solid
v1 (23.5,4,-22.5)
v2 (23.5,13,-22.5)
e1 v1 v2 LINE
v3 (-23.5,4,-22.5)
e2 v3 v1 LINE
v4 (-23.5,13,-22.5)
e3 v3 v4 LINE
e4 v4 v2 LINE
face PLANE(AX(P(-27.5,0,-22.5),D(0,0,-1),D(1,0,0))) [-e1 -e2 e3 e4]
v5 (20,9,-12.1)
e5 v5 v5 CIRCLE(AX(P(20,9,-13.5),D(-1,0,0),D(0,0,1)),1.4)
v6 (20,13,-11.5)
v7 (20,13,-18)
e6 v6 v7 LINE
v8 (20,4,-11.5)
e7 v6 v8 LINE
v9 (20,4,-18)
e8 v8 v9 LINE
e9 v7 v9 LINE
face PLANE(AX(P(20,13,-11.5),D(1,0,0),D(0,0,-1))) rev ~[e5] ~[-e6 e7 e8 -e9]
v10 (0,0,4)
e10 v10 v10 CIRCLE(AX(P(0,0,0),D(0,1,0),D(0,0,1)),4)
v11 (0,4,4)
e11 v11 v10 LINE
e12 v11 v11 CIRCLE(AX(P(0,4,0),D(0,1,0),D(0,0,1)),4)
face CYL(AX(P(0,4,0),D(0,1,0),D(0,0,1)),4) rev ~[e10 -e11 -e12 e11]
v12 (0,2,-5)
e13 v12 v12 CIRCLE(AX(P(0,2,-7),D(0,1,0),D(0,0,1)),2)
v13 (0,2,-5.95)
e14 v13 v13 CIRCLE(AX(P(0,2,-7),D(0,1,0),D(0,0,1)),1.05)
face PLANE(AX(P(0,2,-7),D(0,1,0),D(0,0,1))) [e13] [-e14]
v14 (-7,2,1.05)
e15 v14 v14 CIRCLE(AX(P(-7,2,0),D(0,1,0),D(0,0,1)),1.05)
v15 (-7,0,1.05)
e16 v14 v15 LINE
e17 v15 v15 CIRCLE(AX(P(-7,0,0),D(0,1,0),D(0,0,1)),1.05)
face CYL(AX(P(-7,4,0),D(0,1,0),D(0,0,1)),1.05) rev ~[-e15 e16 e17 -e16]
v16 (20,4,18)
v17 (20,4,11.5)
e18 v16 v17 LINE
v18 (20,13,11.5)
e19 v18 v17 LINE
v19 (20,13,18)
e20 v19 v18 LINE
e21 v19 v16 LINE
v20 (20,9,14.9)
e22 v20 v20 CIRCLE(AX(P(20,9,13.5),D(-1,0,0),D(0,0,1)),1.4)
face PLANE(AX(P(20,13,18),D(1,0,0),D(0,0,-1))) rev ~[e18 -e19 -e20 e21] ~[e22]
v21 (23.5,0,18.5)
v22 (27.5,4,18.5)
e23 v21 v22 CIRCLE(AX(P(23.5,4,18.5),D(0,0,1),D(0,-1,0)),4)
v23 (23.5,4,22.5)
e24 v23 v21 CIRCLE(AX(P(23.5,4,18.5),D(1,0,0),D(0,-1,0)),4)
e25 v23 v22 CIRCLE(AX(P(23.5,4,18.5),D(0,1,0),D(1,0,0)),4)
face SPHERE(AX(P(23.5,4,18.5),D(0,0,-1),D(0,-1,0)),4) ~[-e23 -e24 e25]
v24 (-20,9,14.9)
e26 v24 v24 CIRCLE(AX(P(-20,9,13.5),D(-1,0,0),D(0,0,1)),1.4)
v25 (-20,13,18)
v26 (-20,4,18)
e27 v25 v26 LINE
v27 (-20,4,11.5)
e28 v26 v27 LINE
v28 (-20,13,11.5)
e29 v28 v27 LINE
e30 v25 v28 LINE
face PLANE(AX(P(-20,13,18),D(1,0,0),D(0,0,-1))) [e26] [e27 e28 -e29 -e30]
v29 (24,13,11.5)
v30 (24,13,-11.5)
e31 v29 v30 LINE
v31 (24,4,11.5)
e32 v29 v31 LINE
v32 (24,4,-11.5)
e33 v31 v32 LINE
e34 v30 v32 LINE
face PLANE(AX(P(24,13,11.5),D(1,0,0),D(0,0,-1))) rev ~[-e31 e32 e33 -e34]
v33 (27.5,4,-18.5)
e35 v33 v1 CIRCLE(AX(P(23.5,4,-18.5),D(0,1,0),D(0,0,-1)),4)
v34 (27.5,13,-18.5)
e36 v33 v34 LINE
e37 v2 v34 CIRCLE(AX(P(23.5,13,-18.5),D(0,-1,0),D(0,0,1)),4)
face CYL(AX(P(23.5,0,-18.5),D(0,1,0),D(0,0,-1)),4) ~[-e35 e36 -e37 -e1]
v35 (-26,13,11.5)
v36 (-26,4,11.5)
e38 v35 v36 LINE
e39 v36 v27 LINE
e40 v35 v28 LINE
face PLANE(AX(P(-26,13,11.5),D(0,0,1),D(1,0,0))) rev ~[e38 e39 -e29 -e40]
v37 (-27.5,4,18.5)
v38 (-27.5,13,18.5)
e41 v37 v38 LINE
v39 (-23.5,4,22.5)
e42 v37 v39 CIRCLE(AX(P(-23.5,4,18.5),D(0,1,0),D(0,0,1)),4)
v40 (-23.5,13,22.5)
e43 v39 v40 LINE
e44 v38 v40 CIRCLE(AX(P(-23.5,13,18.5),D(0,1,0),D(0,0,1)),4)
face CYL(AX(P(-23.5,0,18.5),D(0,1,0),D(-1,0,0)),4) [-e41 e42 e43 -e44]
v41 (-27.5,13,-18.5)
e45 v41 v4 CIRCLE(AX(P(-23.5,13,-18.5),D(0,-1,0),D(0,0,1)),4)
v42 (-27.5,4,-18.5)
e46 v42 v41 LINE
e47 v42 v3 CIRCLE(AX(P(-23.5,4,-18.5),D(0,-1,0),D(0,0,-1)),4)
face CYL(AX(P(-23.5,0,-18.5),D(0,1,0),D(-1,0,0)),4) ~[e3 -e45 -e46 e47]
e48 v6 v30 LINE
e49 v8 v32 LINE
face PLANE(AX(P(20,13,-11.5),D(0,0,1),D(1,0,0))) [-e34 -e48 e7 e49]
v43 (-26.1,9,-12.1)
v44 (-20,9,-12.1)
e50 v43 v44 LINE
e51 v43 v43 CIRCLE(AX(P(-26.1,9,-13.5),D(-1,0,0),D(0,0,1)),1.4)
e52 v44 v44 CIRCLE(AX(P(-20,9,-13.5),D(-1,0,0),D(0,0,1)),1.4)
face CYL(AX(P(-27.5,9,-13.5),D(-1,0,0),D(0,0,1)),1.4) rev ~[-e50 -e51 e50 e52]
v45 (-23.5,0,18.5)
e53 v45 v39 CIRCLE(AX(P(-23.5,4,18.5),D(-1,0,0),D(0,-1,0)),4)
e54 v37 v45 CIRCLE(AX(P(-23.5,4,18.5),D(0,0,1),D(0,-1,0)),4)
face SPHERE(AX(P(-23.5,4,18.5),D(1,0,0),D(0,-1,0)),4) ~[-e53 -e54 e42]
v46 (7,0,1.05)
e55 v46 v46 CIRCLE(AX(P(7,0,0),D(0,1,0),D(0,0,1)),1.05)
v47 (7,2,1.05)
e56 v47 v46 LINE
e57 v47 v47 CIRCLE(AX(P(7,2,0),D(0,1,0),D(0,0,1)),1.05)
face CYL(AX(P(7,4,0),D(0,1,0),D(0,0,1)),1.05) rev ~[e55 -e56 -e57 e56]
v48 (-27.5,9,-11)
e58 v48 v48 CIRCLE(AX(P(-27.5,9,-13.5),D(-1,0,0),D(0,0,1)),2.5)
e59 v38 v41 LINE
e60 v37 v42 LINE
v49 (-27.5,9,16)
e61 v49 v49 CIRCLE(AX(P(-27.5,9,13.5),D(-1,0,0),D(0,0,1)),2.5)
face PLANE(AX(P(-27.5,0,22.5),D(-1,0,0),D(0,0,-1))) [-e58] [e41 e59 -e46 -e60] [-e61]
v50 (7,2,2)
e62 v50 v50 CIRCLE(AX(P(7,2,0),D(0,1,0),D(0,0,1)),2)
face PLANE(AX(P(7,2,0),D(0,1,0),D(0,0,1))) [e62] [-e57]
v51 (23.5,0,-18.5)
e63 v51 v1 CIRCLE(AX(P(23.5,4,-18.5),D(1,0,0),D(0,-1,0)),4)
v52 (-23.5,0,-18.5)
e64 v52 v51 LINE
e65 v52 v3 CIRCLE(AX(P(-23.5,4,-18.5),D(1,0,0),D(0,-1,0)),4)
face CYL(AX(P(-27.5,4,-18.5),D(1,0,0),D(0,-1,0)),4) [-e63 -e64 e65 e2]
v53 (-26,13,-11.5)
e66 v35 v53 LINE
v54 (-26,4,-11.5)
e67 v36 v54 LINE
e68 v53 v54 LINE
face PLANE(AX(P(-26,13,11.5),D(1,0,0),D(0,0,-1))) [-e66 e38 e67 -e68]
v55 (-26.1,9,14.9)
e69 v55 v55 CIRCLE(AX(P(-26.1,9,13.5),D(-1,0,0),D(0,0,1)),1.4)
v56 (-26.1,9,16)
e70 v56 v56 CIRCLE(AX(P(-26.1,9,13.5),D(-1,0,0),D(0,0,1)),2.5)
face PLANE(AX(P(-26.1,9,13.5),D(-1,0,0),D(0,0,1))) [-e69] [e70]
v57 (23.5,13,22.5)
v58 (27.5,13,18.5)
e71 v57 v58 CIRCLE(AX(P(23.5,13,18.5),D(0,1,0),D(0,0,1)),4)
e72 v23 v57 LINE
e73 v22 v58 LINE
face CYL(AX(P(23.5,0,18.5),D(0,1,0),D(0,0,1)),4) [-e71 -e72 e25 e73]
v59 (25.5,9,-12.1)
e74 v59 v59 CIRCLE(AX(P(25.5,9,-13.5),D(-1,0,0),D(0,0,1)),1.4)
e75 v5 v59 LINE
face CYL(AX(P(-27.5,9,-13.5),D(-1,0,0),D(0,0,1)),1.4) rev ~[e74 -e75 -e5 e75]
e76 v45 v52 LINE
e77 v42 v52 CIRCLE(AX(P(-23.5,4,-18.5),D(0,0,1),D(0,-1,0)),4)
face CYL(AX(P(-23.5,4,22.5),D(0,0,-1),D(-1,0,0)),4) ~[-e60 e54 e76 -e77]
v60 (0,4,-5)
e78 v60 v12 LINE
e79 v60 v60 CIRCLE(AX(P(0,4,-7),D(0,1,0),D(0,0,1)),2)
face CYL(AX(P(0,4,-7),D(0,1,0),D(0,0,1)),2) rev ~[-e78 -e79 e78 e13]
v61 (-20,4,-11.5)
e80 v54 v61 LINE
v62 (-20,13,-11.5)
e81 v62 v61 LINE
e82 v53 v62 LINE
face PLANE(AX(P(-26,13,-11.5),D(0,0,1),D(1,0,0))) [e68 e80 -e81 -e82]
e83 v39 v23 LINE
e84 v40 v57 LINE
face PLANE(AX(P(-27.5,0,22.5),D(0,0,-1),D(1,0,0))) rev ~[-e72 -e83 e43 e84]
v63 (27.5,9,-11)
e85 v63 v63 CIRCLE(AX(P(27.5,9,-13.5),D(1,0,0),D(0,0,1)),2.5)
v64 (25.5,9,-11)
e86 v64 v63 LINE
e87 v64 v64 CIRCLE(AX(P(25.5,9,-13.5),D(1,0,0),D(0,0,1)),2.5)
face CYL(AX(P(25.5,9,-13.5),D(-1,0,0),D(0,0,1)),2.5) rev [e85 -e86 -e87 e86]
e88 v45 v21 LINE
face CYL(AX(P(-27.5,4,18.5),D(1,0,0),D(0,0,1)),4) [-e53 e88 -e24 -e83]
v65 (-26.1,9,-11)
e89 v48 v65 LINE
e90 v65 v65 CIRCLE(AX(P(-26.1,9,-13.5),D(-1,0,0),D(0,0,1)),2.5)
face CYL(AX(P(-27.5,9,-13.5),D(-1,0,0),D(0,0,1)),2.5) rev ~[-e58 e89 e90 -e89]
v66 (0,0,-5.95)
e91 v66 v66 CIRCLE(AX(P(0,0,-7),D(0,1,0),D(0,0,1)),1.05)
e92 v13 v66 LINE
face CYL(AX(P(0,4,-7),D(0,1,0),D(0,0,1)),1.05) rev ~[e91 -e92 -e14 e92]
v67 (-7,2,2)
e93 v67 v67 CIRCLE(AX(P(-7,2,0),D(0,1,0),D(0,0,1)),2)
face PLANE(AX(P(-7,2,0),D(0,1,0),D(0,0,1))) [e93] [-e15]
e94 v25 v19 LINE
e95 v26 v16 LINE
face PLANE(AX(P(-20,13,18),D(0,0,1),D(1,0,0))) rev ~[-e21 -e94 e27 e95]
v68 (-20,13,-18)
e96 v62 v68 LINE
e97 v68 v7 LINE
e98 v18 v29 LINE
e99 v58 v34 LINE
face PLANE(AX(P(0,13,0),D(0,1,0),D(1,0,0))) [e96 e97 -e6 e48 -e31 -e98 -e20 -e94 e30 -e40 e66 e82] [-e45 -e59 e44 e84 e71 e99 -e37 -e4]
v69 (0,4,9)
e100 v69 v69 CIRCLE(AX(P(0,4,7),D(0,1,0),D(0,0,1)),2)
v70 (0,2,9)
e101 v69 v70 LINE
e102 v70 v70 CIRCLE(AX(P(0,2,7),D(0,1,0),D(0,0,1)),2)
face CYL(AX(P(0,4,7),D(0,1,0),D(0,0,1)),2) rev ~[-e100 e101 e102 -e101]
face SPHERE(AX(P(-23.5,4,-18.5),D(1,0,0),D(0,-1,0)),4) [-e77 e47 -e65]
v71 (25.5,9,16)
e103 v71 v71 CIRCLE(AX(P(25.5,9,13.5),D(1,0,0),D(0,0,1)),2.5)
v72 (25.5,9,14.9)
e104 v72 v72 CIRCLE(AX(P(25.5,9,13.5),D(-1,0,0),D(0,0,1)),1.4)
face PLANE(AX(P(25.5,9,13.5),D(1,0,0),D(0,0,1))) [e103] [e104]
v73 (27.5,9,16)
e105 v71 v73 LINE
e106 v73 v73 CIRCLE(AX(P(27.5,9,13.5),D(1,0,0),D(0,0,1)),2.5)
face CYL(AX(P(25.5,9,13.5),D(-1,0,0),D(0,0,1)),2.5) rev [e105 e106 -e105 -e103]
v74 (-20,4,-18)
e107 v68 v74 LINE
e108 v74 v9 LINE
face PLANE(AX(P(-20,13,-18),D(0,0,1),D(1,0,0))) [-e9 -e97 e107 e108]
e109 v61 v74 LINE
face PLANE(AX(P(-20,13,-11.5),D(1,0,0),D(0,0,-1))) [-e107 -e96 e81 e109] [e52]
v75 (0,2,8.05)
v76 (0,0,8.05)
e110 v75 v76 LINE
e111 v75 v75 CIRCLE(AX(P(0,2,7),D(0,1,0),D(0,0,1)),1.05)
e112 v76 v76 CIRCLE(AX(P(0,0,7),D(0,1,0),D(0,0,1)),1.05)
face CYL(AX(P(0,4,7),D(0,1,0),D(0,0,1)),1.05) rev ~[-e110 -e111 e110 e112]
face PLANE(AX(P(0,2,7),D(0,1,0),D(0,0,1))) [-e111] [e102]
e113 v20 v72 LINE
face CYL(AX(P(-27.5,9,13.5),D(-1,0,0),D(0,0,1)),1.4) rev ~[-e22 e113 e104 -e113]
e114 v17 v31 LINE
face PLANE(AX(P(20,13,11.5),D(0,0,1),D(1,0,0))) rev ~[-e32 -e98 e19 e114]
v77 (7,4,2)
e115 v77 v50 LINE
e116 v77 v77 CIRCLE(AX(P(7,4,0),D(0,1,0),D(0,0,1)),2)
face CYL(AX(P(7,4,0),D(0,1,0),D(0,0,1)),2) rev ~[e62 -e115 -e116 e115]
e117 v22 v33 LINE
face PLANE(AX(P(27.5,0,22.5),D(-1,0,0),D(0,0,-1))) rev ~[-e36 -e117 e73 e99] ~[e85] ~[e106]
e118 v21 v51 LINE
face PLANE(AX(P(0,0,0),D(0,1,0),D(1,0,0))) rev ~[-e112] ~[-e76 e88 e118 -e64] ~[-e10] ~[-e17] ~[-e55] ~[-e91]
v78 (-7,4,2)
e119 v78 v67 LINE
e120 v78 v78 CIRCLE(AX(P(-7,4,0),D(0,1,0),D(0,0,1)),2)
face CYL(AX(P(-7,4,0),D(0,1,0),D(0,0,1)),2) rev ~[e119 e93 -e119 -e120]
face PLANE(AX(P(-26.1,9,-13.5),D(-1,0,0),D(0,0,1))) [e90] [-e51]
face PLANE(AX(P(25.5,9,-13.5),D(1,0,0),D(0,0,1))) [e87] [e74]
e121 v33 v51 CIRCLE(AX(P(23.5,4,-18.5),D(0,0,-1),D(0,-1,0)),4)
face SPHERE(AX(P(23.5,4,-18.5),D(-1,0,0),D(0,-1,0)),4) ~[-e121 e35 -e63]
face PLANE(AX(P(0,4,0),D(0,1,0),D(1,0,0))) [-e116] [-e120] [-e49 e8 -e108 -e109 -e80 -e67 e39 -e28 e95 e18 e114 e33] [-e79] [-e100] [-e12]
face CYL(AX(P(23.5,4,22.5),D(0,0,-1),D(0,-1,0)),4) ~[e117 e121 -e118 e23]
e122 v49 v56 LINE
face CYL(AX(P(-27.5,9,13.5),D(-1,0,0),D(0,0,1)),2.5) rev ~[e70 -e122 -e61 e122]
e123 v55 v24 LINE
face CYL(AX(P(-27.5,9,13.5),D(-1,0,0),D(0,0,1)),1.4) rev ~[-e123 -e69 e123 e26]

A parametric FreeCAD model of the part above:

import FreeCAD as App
import Part
import Sketcher
from FreeCAD import Vector


def edges_at(feature, points):
    """Names of the edges that pass closest to the given points."""
    edges = feature.Shape.Edges
    near = lambda p: min(range(len(edges)), key=lambda i: edges[i].distToShape(Part.Vertex(*p))[0])
    return sorted({f"Edge{near(p) + 1}" for p in points})

doc = App.newDocument("Part")
body = doc.addObject("PartDesign::Body", "Body")

# Sketch on XZ plane
sketch1 = body.newObject("Sketcher::SketchObject", "Sketch")
sketch1.AttachmentSupport = (doc.getObject("XZ_Plane"), [""])
sketch1.MapMode = "FlatFace"
sketch1.addGeometry([
    Part.LineSegment(Vector(-28, -22, 0), Vector(-28, 22, 0)),
    Part.LineSegment(Vector(-28, 22, 0), Vector(28, 22, 0)),
    Part.LineSegment(Vector(28, 22, 0), Vector(28, -22, 0)),
    Part.LineSegment(Vector(28, -22, 0), Vector(-28, -22, 0)),
], False)
sketch1.addConstraint([
    Sketcher.Constraint("Coincident", 0, 2, 1, 1),
    Sketcher.Constraint("Coincident", 1, 2, 2, 1),
    Sketcher.Constraint("Coincident", 2, 2, 3, 1),
    Sketcher.Constraint("Coincident", 3, 2, 0, 1),
    Sketcher.Constraint("Vertical", 0),
    Sketcher.Constraint("Horizontal", 1),
    Sketcher.Constraint("Vertical", 2),
    Sketcher.Constraint("Horizontal", 3),
    Sketcher.Constraint("Symmetric", 0, 2, 2, 2, -1, 1),
    Sketcher.Constraint("DistanceX", 1, 1, 1, 2, 55.0),
    Sketcher.Constraint("DistanceY", 0, 1, 0, 2, 45.0),
])
pad1 = body.newObject("PartDesign::Pad", "Pad")
pad1.Profile = sketch1
pad1.Length = 13
pad1.Reversed = True

# Sketch on XZ plane
sketch2 = body.newObject("Sketcher::SketchObject", "Sketch001")
sketch2.AttachmentSupport = (doc.getObject("XZ_Plane"), [""])
sketch2.MapMode = "FlatFace"
sketch2.AttachmentOffset = App.Placement(Vector(0, 0, -13), App.Rotation())
sketch2.addGeometry([
    Part.LineSegment(Vector(-20, 11.5, 0), Vector(-20, 18, 0)),  # 0
    Part.LineSegment(Vector(-20, 18, 0), Vector(20, 18, 0)),  # 1
    Part.LineSegment(Vector(20, 18, 0), Vector(20, 11.5, 0)),  # 2
    Part.LineSegment(Vector(20, 11.5, 0), Vector(24, 11.5, 0)),  # 3
    Part.LineSegment(Vector(24, 11.5, 0), Vector(24, -11.5, 0)),  # 4
    Part.LineSegment(Vector(24, -11.5, 0), Vector(20, -11.5, 0)),  # 5
    Part.LineSegment(Vector(20, -11.5, 0), Vector(20, -18, 0)),  # 6
    Part.LineSegment(Vector(20, -18, 0), Vector(-20, -18, 0)),  # 7
    Part.LineSegment(Vector(-20, -18, 0), Vector(-20, -11.5, 0)),  # 8
    Part.LineSegment(Vector(-20, -11.5, 0), Vector(-26, -11.5, 0)),  # 9
    Part.LineSegment(Vector(-26, -11.5, 0), Vector(-26, 11.5, 0)),  # 10
    Part.LineSegment(Vector(-26, 11.5, 0), Vector(-20, 11.5, 0)),  # 11
], False)
sketch2.addConstraint([
    Sketcher.Constraint("Coincident", 0, 2, 1, 1),
    Sketcher.Constraint("Coincident", 1, 2, 2, 1),
    Sketcher.Constraint("Coincident", 2, 2, 3, 1),
    Sketcher.Constraint("Coincident", 3, 2, 4, 1),
    Sketcher.Constraint("Coincident", 4, 2, 5, 1),
    Sketcher.Constraint("Coincident", 5, 2, 6, 1),
    Sketcher.Constraint("Coincident", 6, 2, 7, 1),
    Sketcher.Constraint("Coincident", 7, 2, 8, 1),
    Sketcher.Constraint("Coincident", 8, 2, 9, 1),
    Sketcher.Constraint("Coincident", 9, 2, 10, 1),
    Sketcher.Constraint("Coincident", 10, 2, 11, 1),
    Sketcher.Constraint("Coincident", 11, 2, 0, 1),
    Sketcher.Constraint("Vertical", 0),
    Sketcher.Constraint("Horizontal", 1),
    Sketcher.Constraint("Vertical", 2),
    Sketcher.Constraint("Horizontal", 3),
    Sketcher.Constraint("Vertical", 4),
    Sketcher.Constraint("Horizontal", 5),
    Sketcher.Constraint("Vertical", 6),
    Sketcher.Constraint("Horizontal", 7),
    Sketcher.Constraint("Vertical", 8),
    Sketcher.Constraint("Horizontal", 9),
    Sketcher.Constraint("Vertical", 10),
    Sketcher.Constraint("Horizontal", 11),
    Sketcher.Constraint("Symmetric", 0, 2, 6, 2, -1, 1),
    Sketcher.Constraint("Symmetric", 2, 2, 8, 2, -1, 1),
    Sketcher.Constraint("Symmetric", 5, 2, 8, 2, -2),
    Sketcher.Constraint("Horizontal", 3, 2, 10, 2),
    Sketcher.Constraint("DistanceX", 1, 1, 1, 2, 40.0),
    Sketcher.Constraint("DistanceX", 3, 1, 3, 2, 4.0),
    Sketcher.Constraint("DistanceX", 9, 2, 9, 1, 6.0),
    Sketcher.Constraint("DistanceY", 4, 2, 4, 1, 23.0),
    Sketcher.Constraint("DistanceY", 0, 1, 0, 2, 6.5),
])
pocket1 = body.newObject("PartDesign::Pocket", "Pocket")
pocket1.Profile = sketch2
pocket1.Length = 9
pocket1.Reversed = True

# Sketch on YZ plane
sketch3 = body.newObject("Sketcher::SketchObject", "Sketch002")
sketch3.AttachmentSupport = (doc.getObject("YZ_Plane"), [""])
sketch3.MapMode = "FlatFace"
sketch3.AttachmentOffset = App.Placement(Vector(0, 0, -27.5), App.Rotation())
sketch3.addGeometry([
    Part.Circle(Vector(9, -13.5, 0), Vector(0, 0, 1), 1.4),
    Part.Circle(Vector(9, 13.5, 0), Vector(0, 0, 1), 1.4),
], False)
sketch3.addConstraint([
    Sketcher.Constraint("Equal", 0, 1),
    Sketcher.Constraint("Symmetric", 0, 3, 1, 3, -1),
    Sketcher.Constraint("Diameter", 0, 2.8),
    Sketcher.Constraint("DistanceX", -1, 1, 0, 3, 9.0),
    Sketcher.Constraint("DistanceY", 0, 3, 1, 3, 27.0),
])
pocket2 = body.newObject("PartDesign::Pocket", "Pocket001")
pocket2.Profile = sketch3
pocket2.Type = "ThroughAll"
pocket2.Reversed = True

# Sketch on XZ plane
sketch4 = body.newObject("Sketcher::SketchObject", "Sketch003")
sketch4.AttachmentSupport = (doc.getObject("XZ_Plane"), [""])
sketch4.MapMode = "FlatFace"
sketch4.AttachmentOffset = App.Placement(Vector(0, 0, -4), App.Rotation())
sketch4.addGeometry([
    Part.Circle(Vector(0, -7, 0), Vector(0, 0, 1), 1.1),  # 0
    Part.Circle(Vector(7, 0, 0), Vector(0, 0, 1), 1.1),  # 1
    Part.Circle(Vector(-7, 0, 0), Vector(0, 0, 1), 1.1),  # 2
    Part.Circle(Vector(0, 7, 0), Vector(0, 0, 1), 1.1),  # 3
    Part.Circle(Vector(0, 0, 0), Vector(0, 0, 1), 4),  # 4
], False)
sketch4.addConstraint([
    Sketcher.Constraint("Coincident", 4, 3, -1, 1),
    Sketcher.Constraint("Equal", 0, 1),
    Sketcher.Constraint("Equal", 1, 2),
    Sketcher.Constraint("Equal", 2, 3),
    Sketcher.Constraint("Symmetric", 1, 3, 2, 3, -1, 1),
    Sketcher.Constraint("Symmetric", 0, 3, 3, 3, -1, 1),
    Sketcher.Constraint("PointOnObject", 0, 3, -2),
    Sketcher.Constraint("PointOnObject", 1, 3, -1),
    Sketcher.Constraint("Diameter", 4, 8.0),
    Sketcher.Constraint("Diameter", 0, 2.1),
    Sketcher.Constraint("DistanceY", 0, 3, -1, 1, 7.0),
    Sketcher.Constraint("DistanceX", -1, 1, 1, 3, 7.0),
])
pocket3 = body.newObject("PartDesign::Pocket", "Pocket002")
pocket3.Profile = sketch4
pocket3.Type = "ThroughAll"
pocket3.Reversed = True

# Sketch on XZ plane
sketch5 = body.newObject("Sketcher::SketchObject", "Sketch004")
sketch5.AttachmentSupport = (doc.getObject("XZ_Plane"), [""])
sketch5.MapMode = "FlatFace"
sketch5.AttachmentOffset = App.Placement(Vector(0, 0, -4), App.Rotation())
sketch5.addGeometry([
    Part.Circle(Vector(-7, 0, 0), Vector(0, 0, 1), 2),
    Part.Circle(Vector(0, -7, 0), Vector(0, 0, 1), 2),
    Part.Circle(Vector(7, 0, 0), Vector(0, 0, 1), 2),
    Part.Circle(Vector(0, 7, 0), Vector(0, 0, 1), 2),
], False)
sketch5.addConstraint([
    Sketcher.Constraint("Equal", 0, 1),
    Sketcher.Constraint("Equal", 1, 2),
    Sketcher.Constraint("Equal", 2, 3),
    Sketcher.Constraint("Symmetric", 0, 3, 2, 3, -1, 1),
    Sketcher.Constraint("Symmetric", 1, 3, 3, 3, -1, 1),
    Sketcher.Constraint("PointOnObject", 0, 3, -1),
    Sketcher.Constraint("PointOnObject", 1, 3, -2),
    Sketcher.Constraint("Diameter", 0, 4.0),
    Sketcher.Constraint("DistanceX", 0, 3, -1, 1, 7.0),
    Sketcher.Constraint("DistanceY", 1, 3, -1, 1, 7.0),
])
pocket4 = body.newObject("PartDesign::Pocket", "Pocket003")
pocket4.Profile = sketch5
pocket4.Length = 2
pocket4.Reversed = True

# Sketch on YZ plane
sketch6 = body.newObject("Sketcher::SketchObject", "Sketch005")
sketch6.AttachmentSupport = (doc.getObject("YZ_Plane"), [""])
sketch6.MapMode = "FlatFace"
sketch6.AttachmentOffset = App.Placement(Vector(0, 0, -27.5), App.Rotation())
sketch6.addGeometry([
    Part.Circle(Vector(9, -13.5, 0), Vector(0, 0, 1), 2.5),
    Part.Circle(Vector(9, 13.5, 0), Vector(0, 0, 1), 2.5),
], False)
sketch6.addConstraint([
    Sketcher.Constraint("Equal", 0, 1),
    Sketcher.Constraint("Symmetric", 0, 3, 1, 3, -1),
    Sketcher.Constraint("Diameter", 0, 5.0),
    Sketcher.Constraint("DistanceX", -1, 1, 0, 3, 9.0),
    Sketcher.Constraint("DistanceY", 0, 3, 1, 3, 27.0),
])
pocket5 = body.newObject("PartDesign::Pocket", "Pocket004")
pocket5.Profile = sketch6
pocket5.Length = 1.4
pocket5.Reversed = True

# Sketch on YZ plane
sketch7 = body.newObject("Sketcher::SketchObject", "Sketch006")
sketch7.AttachmentSupport = (doc.getObject("YZ_Plane"), [""])
sketch7.MapMode = "FlatFace"
sketch7.AttachmentOffset = App.Placement(Vector(0, 0, 25.5), App.Rotation())
sketch7.addGeometry([
    Part.Circle(Vector(9, 13.5, 0), Vector(0, 0, 1), 2.5),
    Part.Circle(Vector(9, -13.5, 0), Vector(0, 0, 1), 2.5),
], False)
sketch7.addConstraint([
    Sketcher.Constraint("Equal", 0, 1),
    Sketcher.Constraint("Symmetric", 0, 3, 1, 3, -1),
    Sketcher.Constraint("Diameter", 0, 5.0),
    Sketcher.Constraint("DistanceX", -1, 1, 0, 3, 9.0),
    Sketcher.Constraint("DistanceY", 1, 3, 0, 3, 27.0),
])
pocket6 = body.newObject("PartDesign::Pocket", "Pocket005")
pocket6.Profile = sketch7
pocket6.Length = 2
pocket6.Reversed = True
doc.recompute()

fillet = body.newObject("PartDesign::Fillet", "Fillet")
fillet.Base = (pocket6, edges_at(pocket6, [
    (0, 0, -22.5),
    (27.5, 0, 0),
    (0, 0, 22.5),
    (-27.5, 0, 0),
    (-27.5, 6.5, -22.5),
    (27.5, 6.5, -22.5),
    (27.5, 6.5, 22.5),
    (-27.5, 6.5, 22.5),
]))
fillet.Radius = 4

doc.recompute()
